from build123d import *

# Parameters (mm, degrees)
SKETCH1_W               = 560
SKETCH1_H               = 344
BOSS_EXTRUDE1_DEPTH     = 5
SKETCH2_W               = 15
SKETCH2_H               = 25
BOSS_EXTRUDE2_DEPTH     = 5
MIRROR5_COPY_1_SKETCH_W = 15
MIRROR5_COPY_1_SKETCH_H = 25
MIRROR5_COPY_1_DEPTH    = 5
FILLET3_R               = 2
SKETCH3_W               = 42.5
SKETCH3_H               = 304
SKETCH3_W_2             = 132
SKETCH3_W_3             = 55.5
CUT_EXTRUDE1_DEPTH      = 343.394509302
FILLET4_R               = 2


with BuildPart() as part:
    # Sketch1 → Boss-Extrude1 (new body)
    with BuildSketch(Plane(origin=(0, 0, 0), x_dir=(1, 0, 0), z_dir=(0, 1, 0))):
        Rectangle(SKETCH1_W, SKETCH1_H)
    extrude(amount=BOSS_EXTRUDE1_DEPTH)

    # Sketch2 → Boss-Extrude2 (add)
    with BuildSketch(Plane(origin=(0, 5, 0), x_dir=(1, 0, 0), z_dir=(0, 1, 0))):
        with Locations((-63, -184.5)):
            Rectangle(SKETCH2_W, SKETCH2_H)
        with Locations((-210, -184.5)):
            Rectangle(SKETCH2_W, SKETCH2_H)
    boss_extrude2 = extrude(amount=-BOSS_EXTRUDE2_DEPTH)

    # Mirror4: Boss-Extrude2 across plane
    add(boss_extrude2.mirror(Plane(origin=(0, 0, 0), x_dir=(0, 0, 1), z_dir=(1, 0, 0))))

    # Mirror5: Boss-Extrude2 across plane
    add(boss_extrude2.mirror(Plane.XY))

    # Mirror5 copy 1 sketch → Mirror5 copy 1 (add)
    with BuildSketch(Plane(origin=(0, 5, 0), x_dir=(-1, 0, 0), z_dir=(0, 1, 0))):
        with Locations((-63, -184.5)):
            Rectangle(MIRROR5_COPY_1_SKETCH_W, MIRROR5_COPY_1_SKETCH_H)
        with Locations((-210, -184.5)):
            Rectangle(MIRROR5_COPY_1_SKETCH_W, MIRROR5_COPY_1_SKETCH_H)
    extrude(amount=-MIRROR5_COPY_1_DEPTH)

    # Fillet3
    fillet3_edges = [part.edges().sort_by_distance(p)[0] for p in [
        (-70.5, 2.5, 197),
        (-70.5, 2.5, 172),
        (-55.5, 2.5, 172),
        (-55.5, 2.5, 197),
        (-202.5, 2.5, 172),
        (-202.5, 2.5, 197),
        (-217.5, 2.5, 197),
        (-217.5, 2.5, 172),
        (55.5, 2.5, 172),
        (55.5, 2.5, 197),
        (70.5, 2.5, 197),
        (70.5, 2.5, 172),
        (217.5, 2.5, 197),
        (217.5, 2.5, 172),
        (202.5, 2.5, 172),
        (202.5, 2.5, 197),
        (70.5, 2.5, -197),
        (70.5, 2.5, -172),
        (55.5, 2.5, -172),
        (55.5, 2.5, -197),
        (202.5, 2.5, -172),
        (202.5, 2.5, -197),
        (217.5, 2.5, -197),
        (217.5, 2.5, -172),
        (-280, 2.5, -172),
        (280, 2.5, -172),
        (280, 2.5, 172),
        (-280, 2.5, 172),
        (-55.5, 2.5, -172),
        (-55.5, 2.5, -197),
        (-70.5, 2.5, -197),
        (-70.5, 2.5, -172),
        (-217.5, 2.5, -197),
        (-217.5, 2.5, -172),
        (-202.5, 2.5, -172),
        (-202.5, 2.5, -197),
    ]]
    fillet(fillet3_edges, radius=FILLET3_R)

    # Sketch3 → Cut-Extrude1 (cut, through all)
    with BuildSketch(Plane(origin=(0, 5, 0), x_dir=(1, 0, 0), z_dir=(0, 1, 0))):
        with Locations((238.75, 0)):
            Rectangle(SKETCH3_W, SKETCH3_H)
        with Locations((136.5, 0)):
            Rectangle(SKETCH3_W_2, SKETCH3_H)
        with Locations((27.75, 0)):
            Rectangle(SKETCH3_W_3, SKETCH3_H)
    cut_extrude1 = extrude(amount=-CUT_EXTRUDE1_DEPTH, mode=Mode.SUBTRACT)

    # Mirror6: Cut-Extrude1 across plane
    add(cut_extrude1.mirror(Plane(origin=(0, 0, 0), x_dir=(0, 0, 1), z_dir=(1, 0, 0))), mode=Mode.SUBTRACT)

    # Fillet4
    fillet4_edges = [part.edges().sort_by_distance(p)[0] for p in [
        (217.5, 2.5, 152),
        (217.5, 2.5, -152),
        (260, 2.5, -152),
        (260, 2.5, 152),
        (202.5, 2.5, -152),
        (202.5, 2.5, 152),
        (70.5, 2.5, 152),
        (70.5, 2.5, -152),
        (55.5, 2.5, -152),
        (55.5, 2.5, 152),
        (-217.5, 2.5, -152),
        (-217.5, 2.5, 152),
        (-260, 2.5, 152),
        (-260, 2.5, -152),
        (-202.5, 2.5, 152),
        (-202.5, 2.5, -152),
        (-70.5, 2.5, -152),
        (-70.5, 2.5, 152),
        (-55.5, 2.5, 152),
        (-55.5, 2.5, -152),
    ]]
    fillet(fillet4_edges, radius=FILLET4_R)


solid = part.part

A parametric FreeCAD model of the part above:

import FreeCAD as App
import Part
import Sketcher
Q = App.Units.Quantity


def edges_at(feature, points):
    """Names of the edges that pass closest to the given points."""
    edges = feature.Shape.Edges
    near = lambda p: min(range(len(edges)), key=lambda i: edges[i].distToShape(Part.Vertex(*p))[0])
    return sorted({f"Edge{near(p) + 1}" for p in points})

doc = App.newDocument("Part")
body = doc.addObject("PartDesign::Body", "Body")

sketch1 = doc.addObject("Sketcher::SketchObject", "Sketch")
body.addObject(sketch1)
sketch1.AttachmentSupport = (doc.XZ_Plane, [""])
sketch1.MapMode = "FlatFace"
sketch1.addGeometry([
    Part.LineSegment(App.Vector(-280, -172, 0), App.Vector(-280, 172, 0)),
    Part.LineSegment(App.Vector(-280, 172, 0), App.Vector(280, 172, 0)),
    Part.LineSegment(App.Vector(280, 172, 0), App.Vector(280, -172, 0)),
    Part.LineSegment(App.Vector(280, -172, 0), App.Vector(-280, -172, 0)),
], False)
sketch1.addConstraint([
    Sketcher.Constraint("Coincident", 0, 2, 1, 1),
    Sketcher.Constraint("Coincident", 1, 2, 2, 1),
    Sketcher.Constraint("Coincident", 2, 2, 3, 1),
    Sketcher.Constraint("Coincident", 3, 2, 0, 1),
    Sketcher.Constraint("Vertical", 0),
    Sketcher.Constraint("Horizontal", 1),
    Sketcher.Constraint("Vertical", 2),
    Sketcher.Constraint("Horizontal", 3),
    Sketcher.Constraint("Symmetric", 0, 2, 2, 2, -1, 1),
    Sketcher.Constraint("DistanceX", 1, 1, 1, 2, Q("560 mm")),
    Sketcher.Constraint("DistanceY", 0, 1, 0, 2, Q("344 mm")),
])
pad1 = doc.addObject("PartDesign::Pad", "Pad")
body.addObject(pad1)
pad1.Profile = sketch1
pad1.Length = 5
pad1.Reversed = True

sketch2 = doc.addObject("Sketcher::SketchObject", "Sketch001")
body.addObject(sketch2)
sketch2.AttachmentSupport = (doc.XZ_Plane, [""])
sketch2.MapMode = "FlatFace"
sketch2.AttachmentOffset = App.Placement(App.Vector(0, 0, -5), App.Rotation())
sketch2.addGeometry([
    Part.LineSegment(App.Vector(-70, 172, 0), App.Vector(-70, 197, 0)),
    Part.LineSegment(App.Vector(-70, 197, 0), App.Vector(-56, 197, 0)),
    Part.LineSegment(App.Vector(-56, 197, 0), App.Vector(-56, 172, 0)),
    Part.LineSegment(App.Vector(-56, 172, 0), App.Vector(-70, 172, 0)),
    Part.LineSegment(App.Vector(-218, 172, 0), App.Vector(-218, 197, 0)),
    Part.LineSegment(App.Vector(-218, 197, 0), App.Vector(-202, 197, 0)),
    Part.LineSegment(App.Vector(-202, 197, 0), App.Vector(-202, 172, 0)),
    Part.LineSegment(App.Vector(-202, 172, 0), App.Vector(-218, 172, 0)),
], False)
sketch2.addConstraint([
    Sketcher.Constraint("Coincident", 0, 2, 1, 1),
    Sketcher.Constraint("Coincident", 1, 2, 2, 1),
    Sketcher.Constraint("Coincident", 2, 2, 3, 1),
    Sketcher.Constraint("Coincident", 3, 2, 0, 1),
    Sketcher.Constraint("Coincident", 4, 2, 5, 1),
    Sketcher.Constraint("Coincident", 5, 2, 6, 1),
    Sketcher.Constraint("Coincident", 6, 2, 7, 1),
    Sketcher.Constraint("Coincident", 7, 2, 4, 1),
    Sketcher.Constraint("Vertical", 0),
    Sketcher.Constraint("Horizontal", 1),
    Sketcher.Constraint("Vertical", 2),
    Sketcher.Constraint("Horizontal", 3),
    Sketcher.Constraint("Vertical", 4),
    Sketcher.Constraint("Horizontal", 5),
    Sketcher.Constraint("Vertical", 6),
    Sketcher.Constraint("Horizontal", 7),
    Sketcher.Constraint("Horizontal", 1, 2, 4, 2),
    Sketcher.Constraint("Horizontal", 3, 2, 6, 2),
    Sketcher.Constraint("Equal", 3, 5),
    Sketcher.Constraint("DistanceX", 1, 1, 1, 2, Q("15 mm")),
    Sketcher.Constraint("DistanceY", 0, 1, 0, 2, Q("25 mm")),
    Sketcher.Constraint("DistanceY", -1, 1, 0, 2, Q("197 mm")),
    Sketcher.Constraint("DistanceX", 4, 2, 0, 2, Q("147 mm")),
    Sketcher.Constraint("DistanceX", 0, 2, -1, 1, Q("70.5 mm")),
])
pad2 = doc.addObject("PartDesign::Pad", "Pad001")
body.addObject(pad2)
pad2.Profile = sketch2
pad2.Length = 5
doc.recompute()

mirrored = doc.addObject("PartDesign::Mirrored", "Mirrored")
body.addObject(mirrored)
mirrored.Originals = [pad2]
mirrored.MirrorPlane = (doc.YZ_Plane, [""])
body.Tip = mirrored
doc.recompute()

mirrored2 = doc.addObject("PartDesign::Mirrored", "Mirrored001")
body.addObject(mirrored2)
mirrored2.Originals = [pad2]
mirrored2.MirrorPlane = (doc.XY_Plane, [""])
body.Tip = mirrored2

sketch3 = doc.addObject("Sketcher::SketchObject", "Sketch002")
body.addObject(sketch3)
sketch3.AttachmentSupport = (doc.XZ_Plane, [""])
sketch3.MapMode = "FlatFace"
sketch3.AttachmentOffset = App.Placement(App.Vector(0, 0, -5), App.Rotation())
sketch3.addGeometry([
    Part.LineSegment(App.Vector(70, -172, 0), App.Vector(70, -197, 0)),
    Part.LineSegment(App.Vector(70, -197, 0), App.Vector(56, -197, 0)),
    Part.LineSegment(App.Vector(56, -197, 0), App.Vector(56, -172, 0)),
    Part.LineSegment(App.Vector(56, -172, 0), App.Vector(70, -172, 0)),
    Part.LineSegment(App.Vector(218, -172, 0), App.Vector(218, -197, 0)),
    Part.LineSegment(App.Vector(218, -197, 0), App.Vector(202, -197, 0)),
    Part.LineSegment(App.Vector(202, -197, 0), App.Vector(202, -172, 0)),
    Part.LineSegment(App.Vector(202, -172, 0), App.Vector(218, -172, 0)),
], False)
sketch3.addConstraint([
    Sketcher.Constraint("Coincident", 0, 2, 1, 1),
    Sketcher.Constraint("Coincident", 1, 2, 2, 1),
    Sketcher.Constraint("Coincident", 2, 2, 3, 1),
    Sketcher.Constraint("Coincident", 3, 2, 0, 1),
    Sketcher.Constraint("Coincident", 4, 2, 5, 1),
    Sketcher.Constraint("Coincident", 5, 2, 6, 1),
    Sketcher.Constraint("Coincident", 6, 2, 7, 1),
    Sketcher.Constraint("Coincident", 7, 2, 4, 1),
    Sketcher.Constraint("Vertical", 0),
    Sketcher.Constraint("Horizontal", 1),
    Sketcher.Constraint("Vertical", 2),
    Sketcher.Constraint("Horizontal", 3),
    Sketcher.Constraint("Vertical", 4),
    Sketcher.Constraint("Horizontal", 5),
    Sketcher.Constraint("Vertical", 6),
    Sketcher.Constraint("Horizontal", 7),
    Sketcher.Constraint("Horizontal", 1, 2, 4, 2),
    Sketcher.Constraint("Horizontal", 3, 2, 6, 2),
    Sketcher.Constraint("Equal", 3, 5),
    Sketcher.Constraint("DistanceX", 1, 2, 1, 1, Q("15 mm")),
    Sketcher.Constraint("DistanceY", 0, 2, 0, 1, Q("25 mm")),
    Sketcher.Constraint("DistanceY", 0, 2, -1, 1, Q("197 mm")),
    Sketcher.Constraint("DistanceX", 0, 2, 4, 2, Q("147 mm")),
    Sketcher.Constraint("DistanceX", -1, 1, 0, 2, Q("70.5 mm")),
])
pad3 = doc.addObject("PartDesign::Pad", "Pad002")
body.addObject(pad3)
pad3.Profile = sketch3
pad3.Length = 5
doc.recompute()

fillet = doc.addObject("PartDesign::Fillet", "Fillet")
body.addObject(fillet)
fillet.Base = (pad3, edges_at(pad3, [
    (-70.5, 2.5, 197),
    (-70.5, 2.5, 172),
    (-55.5, 2.5, 172),
    (-55.5, 2.5, 197),
    (-202.5, 2.5, 172),
    (-202.5, 2.5, 197),
    (-217.5, 2.5, 197),
    (-217.5, 2.5, 172),
    (55.5, 2.5, 172),
    (55.5, 2.5, 197),
    (70.5, 2.5, 197),
    (70.5, 2.5, 172),
    (217.5, 2.5, 197),
    (217.5, 2.5, 172),
    (202.5, 2.5, 172),
    (202.5, 2.5, 197),
    (70.5, 2.5, -197),
    (70.5, 2.5, -172),
    (55.5, 2.5, -172),
    (55.5, 2.5, -197),
    (202.5, 2.5, -172),
    (202.5, 2.5, -197),
    (217.5, 2.5, -197),
    (217.5, 2.5, -172),
    (-280, 2.5, -172),
    (280, 2.5, -172),
    (280, 2.5, 172),
    (-280, 2.5, 172),
    (-55.5, 2.5, -172),
    (-55.5, 2.5, -197),
    (-70.5, 2.5, -197),
    (-70.5, 2.5, -172),
    (-217.5, 2.5, -197),
    (-217.5, 2.5, -172),
    (-202.5, 2.5, -172),
    (-202.5, 2.5, -197),
]))
fillet.Radius = 2

sketch4 = doc.addObject("Sketcher::SketchObject", "Sketch003")
body.addObject(sketch4)
sketch4.AttachmentSupport = (doc.XZ_Plane, [""])
sketch4.MapMode = "FlatFace"
sketch4.AttachmentOffset = App.Placement(App.Vector(0, 0, -5), App.Rotation())
sketch4.addGeometry([
    Part.LineSegment(App.Vector(218, -152, 0), App.Vector(218, 152, 0)),
    Part.LineSegment(App.Vector(218, 152, 0), App.Vector(260, 152, 0)),
    Part.LineSegment(App.Vector(260, 152, 0), App.Vector(260, -152, 0)),
    Part.LineSegment(App.Vector(260, -152, 0), App.Vector(218, -152, 0)),
    Part.LineSegment(App.Vector(70, -152, 0), App.Vector(70, 152, 0)),
    Part.LineSegment(App.Vector(70, 152, 0), App.Vector(202, 152, 0)),
    Part.LineSegment(App.Vector(202, 152, 0), App.Vector(202, -152, 0)),
    Part.LineSegment(App.Vector(202, -152, 0), App.Vector(70, -152, 0)),
    Part.LineSegment(App.Vector(0, -152, 0), App.Vector(0, 152, 0)),
    Part.LineSegment(App.Vector(0, 152, 0), App.Vector(56, 152, 0)),
    Part.LineSegment(App.Vector(56, 152, 0), App.Vector(56, -152, 0)),
    Part.LineSegment(App.Vector(56, -152, 0), App.Vector(0, -152, 0)),
], False)
sketch4.addConstraint([
    Sketcher.Constraint("Coincident", 0, 2, 1, 1),
    Sketcher.Constraint("Coincident", 1, 2, 2, 1),
    Sketcher.Constraint("Coincident", 2, 2, 3, 1),
    Sketcher.Constraint("Coincident", 3, 2, 0, 1),
    Sketcher.Constraint("Coincident", 4, 2, 5, 1),
    Sketcher.Constraint("Coincident", 5, 2, 6, 1),
    Sketcher.Constraint("Coincident", 6, 2, 7, 1),
    Sketcher.Constraint("Coincident", 7, 2, 4, 1),
    Sketcher.Constraint("Coincident", 8, 2, 9, 1),
    Sketcher.Constraint("Coincident", 9, 2, 10, 1),
    Sketcher.Constraint("Coincident", 10, 2, 11, 1),
    Sketcher.Constraint("Coincident", 11, 2, 8, 1),
    Sketcher.Constraint("Vertical", 0),
    Sketcher.Constraint("Horizontal", 1),
    Sketcher.Constraint("Vertical", 2),
    Sketcher.Constraint("Horizontal", 3),
    Sketcher.Constraint("Vertical", 4),
    Sketcher.Constraint("Horizontal", 5),
    Sketcher.Constraint("Vertical", 6),
    Sketcher.Constraint("Horizontal", 7),
    Sketcher.Constraint("Vertical", 8),
    Sketcher.Constraint("Horizontal", 9),
    Sketcher.Constraint("Vertical", 10),
    Sketcher.Constraint("Horizontal", 11),
    Sketcher.Constraint("Symmetric", 8, 2, 11, 2, -1, 1),
    Sketcher.Constraint("Horizontal", 1, 2, 4, 2),
    Sketcher.Constraint("Horizontal", 3, 2, 6, 2),
    Sketcher.Constraint("Horizontal", 5, 2, 8, 2),
    Sketcher.Constraint("Horizontal", 7, 2, 10, 2),
    Sketcher.Constraint("DistanceX", 5, 1, 5, 2, Q("132 mm")),
    Sketcher.Constraint("DistanceY", 0, 1, 0, 2, Q("304 mm")),
    Sketcher.Constraint("DistanceX", 1, 1, 1, 2, Q("42.5 mm")),
    Sketcher.Constraint("DistanceX", 9, 1, 9, 2, Q("55.5 mm")),
    Sketcher.Constraint("DistanceX", -1, 1, 1, 2, Q("260 mm")),
    Sketcher.Constraint("DistanceX", 4, 2, 0, 2, Q("147 mm")),
])
pocket1 = doc.addObject("PartDesign::Pocket", "Pocket")
body.addObject(pocket1)
pocket1.Profile = sketch4
pocket1.Type = "ThroughAll"
pocket1.Reversed = True
doc.recompute()

mirrored3 = doc.addObject("PartDesign::Mirrored", "Mirrored002")
body.addObject(mirrored3)
mirrored3.Originals = [pocket1]
mirrored3.MirrorPlane = (doc.YZ_Plane, [""])
body.Tip = mirrored3
doc.recompute()

fillet2 = doc.addObject("PartDesign::Fillet", "Fillet001")
body.addObject(fillet2)
fillet2.Base = (mirrored3, edges_at(mirrored3, [
    (217.5, 2.5, 152),
    (217.5, 2.5, -152),
    (260, 2.5, -152),
    (260, 2.5, 152),
    (202.5, 2.5, -152),
    (202.5, 2.5, 152),
    (70.5, 2.5, 152),
    (70.5, 2.5, -152),
    (55.5, 2.5, -152),
    (55.5, 2.5, 152),
    (-217.5, 2.5, -152),
    (-217.5, 2.5, 152),
    (-260, 2.5, 152),
    (-260, 2.5, -152),
    (-202.5, 2.5, 152),
    (-202.5, 2.5, -152),
    (-70.5, 2.5, -152),
    (-70.5, 2.5, 152),
    (-55.5, 2.5, 152),
    (-55.5, 2.5, -152),
]))
fillet2.Radius = 2

doc.recompute()
